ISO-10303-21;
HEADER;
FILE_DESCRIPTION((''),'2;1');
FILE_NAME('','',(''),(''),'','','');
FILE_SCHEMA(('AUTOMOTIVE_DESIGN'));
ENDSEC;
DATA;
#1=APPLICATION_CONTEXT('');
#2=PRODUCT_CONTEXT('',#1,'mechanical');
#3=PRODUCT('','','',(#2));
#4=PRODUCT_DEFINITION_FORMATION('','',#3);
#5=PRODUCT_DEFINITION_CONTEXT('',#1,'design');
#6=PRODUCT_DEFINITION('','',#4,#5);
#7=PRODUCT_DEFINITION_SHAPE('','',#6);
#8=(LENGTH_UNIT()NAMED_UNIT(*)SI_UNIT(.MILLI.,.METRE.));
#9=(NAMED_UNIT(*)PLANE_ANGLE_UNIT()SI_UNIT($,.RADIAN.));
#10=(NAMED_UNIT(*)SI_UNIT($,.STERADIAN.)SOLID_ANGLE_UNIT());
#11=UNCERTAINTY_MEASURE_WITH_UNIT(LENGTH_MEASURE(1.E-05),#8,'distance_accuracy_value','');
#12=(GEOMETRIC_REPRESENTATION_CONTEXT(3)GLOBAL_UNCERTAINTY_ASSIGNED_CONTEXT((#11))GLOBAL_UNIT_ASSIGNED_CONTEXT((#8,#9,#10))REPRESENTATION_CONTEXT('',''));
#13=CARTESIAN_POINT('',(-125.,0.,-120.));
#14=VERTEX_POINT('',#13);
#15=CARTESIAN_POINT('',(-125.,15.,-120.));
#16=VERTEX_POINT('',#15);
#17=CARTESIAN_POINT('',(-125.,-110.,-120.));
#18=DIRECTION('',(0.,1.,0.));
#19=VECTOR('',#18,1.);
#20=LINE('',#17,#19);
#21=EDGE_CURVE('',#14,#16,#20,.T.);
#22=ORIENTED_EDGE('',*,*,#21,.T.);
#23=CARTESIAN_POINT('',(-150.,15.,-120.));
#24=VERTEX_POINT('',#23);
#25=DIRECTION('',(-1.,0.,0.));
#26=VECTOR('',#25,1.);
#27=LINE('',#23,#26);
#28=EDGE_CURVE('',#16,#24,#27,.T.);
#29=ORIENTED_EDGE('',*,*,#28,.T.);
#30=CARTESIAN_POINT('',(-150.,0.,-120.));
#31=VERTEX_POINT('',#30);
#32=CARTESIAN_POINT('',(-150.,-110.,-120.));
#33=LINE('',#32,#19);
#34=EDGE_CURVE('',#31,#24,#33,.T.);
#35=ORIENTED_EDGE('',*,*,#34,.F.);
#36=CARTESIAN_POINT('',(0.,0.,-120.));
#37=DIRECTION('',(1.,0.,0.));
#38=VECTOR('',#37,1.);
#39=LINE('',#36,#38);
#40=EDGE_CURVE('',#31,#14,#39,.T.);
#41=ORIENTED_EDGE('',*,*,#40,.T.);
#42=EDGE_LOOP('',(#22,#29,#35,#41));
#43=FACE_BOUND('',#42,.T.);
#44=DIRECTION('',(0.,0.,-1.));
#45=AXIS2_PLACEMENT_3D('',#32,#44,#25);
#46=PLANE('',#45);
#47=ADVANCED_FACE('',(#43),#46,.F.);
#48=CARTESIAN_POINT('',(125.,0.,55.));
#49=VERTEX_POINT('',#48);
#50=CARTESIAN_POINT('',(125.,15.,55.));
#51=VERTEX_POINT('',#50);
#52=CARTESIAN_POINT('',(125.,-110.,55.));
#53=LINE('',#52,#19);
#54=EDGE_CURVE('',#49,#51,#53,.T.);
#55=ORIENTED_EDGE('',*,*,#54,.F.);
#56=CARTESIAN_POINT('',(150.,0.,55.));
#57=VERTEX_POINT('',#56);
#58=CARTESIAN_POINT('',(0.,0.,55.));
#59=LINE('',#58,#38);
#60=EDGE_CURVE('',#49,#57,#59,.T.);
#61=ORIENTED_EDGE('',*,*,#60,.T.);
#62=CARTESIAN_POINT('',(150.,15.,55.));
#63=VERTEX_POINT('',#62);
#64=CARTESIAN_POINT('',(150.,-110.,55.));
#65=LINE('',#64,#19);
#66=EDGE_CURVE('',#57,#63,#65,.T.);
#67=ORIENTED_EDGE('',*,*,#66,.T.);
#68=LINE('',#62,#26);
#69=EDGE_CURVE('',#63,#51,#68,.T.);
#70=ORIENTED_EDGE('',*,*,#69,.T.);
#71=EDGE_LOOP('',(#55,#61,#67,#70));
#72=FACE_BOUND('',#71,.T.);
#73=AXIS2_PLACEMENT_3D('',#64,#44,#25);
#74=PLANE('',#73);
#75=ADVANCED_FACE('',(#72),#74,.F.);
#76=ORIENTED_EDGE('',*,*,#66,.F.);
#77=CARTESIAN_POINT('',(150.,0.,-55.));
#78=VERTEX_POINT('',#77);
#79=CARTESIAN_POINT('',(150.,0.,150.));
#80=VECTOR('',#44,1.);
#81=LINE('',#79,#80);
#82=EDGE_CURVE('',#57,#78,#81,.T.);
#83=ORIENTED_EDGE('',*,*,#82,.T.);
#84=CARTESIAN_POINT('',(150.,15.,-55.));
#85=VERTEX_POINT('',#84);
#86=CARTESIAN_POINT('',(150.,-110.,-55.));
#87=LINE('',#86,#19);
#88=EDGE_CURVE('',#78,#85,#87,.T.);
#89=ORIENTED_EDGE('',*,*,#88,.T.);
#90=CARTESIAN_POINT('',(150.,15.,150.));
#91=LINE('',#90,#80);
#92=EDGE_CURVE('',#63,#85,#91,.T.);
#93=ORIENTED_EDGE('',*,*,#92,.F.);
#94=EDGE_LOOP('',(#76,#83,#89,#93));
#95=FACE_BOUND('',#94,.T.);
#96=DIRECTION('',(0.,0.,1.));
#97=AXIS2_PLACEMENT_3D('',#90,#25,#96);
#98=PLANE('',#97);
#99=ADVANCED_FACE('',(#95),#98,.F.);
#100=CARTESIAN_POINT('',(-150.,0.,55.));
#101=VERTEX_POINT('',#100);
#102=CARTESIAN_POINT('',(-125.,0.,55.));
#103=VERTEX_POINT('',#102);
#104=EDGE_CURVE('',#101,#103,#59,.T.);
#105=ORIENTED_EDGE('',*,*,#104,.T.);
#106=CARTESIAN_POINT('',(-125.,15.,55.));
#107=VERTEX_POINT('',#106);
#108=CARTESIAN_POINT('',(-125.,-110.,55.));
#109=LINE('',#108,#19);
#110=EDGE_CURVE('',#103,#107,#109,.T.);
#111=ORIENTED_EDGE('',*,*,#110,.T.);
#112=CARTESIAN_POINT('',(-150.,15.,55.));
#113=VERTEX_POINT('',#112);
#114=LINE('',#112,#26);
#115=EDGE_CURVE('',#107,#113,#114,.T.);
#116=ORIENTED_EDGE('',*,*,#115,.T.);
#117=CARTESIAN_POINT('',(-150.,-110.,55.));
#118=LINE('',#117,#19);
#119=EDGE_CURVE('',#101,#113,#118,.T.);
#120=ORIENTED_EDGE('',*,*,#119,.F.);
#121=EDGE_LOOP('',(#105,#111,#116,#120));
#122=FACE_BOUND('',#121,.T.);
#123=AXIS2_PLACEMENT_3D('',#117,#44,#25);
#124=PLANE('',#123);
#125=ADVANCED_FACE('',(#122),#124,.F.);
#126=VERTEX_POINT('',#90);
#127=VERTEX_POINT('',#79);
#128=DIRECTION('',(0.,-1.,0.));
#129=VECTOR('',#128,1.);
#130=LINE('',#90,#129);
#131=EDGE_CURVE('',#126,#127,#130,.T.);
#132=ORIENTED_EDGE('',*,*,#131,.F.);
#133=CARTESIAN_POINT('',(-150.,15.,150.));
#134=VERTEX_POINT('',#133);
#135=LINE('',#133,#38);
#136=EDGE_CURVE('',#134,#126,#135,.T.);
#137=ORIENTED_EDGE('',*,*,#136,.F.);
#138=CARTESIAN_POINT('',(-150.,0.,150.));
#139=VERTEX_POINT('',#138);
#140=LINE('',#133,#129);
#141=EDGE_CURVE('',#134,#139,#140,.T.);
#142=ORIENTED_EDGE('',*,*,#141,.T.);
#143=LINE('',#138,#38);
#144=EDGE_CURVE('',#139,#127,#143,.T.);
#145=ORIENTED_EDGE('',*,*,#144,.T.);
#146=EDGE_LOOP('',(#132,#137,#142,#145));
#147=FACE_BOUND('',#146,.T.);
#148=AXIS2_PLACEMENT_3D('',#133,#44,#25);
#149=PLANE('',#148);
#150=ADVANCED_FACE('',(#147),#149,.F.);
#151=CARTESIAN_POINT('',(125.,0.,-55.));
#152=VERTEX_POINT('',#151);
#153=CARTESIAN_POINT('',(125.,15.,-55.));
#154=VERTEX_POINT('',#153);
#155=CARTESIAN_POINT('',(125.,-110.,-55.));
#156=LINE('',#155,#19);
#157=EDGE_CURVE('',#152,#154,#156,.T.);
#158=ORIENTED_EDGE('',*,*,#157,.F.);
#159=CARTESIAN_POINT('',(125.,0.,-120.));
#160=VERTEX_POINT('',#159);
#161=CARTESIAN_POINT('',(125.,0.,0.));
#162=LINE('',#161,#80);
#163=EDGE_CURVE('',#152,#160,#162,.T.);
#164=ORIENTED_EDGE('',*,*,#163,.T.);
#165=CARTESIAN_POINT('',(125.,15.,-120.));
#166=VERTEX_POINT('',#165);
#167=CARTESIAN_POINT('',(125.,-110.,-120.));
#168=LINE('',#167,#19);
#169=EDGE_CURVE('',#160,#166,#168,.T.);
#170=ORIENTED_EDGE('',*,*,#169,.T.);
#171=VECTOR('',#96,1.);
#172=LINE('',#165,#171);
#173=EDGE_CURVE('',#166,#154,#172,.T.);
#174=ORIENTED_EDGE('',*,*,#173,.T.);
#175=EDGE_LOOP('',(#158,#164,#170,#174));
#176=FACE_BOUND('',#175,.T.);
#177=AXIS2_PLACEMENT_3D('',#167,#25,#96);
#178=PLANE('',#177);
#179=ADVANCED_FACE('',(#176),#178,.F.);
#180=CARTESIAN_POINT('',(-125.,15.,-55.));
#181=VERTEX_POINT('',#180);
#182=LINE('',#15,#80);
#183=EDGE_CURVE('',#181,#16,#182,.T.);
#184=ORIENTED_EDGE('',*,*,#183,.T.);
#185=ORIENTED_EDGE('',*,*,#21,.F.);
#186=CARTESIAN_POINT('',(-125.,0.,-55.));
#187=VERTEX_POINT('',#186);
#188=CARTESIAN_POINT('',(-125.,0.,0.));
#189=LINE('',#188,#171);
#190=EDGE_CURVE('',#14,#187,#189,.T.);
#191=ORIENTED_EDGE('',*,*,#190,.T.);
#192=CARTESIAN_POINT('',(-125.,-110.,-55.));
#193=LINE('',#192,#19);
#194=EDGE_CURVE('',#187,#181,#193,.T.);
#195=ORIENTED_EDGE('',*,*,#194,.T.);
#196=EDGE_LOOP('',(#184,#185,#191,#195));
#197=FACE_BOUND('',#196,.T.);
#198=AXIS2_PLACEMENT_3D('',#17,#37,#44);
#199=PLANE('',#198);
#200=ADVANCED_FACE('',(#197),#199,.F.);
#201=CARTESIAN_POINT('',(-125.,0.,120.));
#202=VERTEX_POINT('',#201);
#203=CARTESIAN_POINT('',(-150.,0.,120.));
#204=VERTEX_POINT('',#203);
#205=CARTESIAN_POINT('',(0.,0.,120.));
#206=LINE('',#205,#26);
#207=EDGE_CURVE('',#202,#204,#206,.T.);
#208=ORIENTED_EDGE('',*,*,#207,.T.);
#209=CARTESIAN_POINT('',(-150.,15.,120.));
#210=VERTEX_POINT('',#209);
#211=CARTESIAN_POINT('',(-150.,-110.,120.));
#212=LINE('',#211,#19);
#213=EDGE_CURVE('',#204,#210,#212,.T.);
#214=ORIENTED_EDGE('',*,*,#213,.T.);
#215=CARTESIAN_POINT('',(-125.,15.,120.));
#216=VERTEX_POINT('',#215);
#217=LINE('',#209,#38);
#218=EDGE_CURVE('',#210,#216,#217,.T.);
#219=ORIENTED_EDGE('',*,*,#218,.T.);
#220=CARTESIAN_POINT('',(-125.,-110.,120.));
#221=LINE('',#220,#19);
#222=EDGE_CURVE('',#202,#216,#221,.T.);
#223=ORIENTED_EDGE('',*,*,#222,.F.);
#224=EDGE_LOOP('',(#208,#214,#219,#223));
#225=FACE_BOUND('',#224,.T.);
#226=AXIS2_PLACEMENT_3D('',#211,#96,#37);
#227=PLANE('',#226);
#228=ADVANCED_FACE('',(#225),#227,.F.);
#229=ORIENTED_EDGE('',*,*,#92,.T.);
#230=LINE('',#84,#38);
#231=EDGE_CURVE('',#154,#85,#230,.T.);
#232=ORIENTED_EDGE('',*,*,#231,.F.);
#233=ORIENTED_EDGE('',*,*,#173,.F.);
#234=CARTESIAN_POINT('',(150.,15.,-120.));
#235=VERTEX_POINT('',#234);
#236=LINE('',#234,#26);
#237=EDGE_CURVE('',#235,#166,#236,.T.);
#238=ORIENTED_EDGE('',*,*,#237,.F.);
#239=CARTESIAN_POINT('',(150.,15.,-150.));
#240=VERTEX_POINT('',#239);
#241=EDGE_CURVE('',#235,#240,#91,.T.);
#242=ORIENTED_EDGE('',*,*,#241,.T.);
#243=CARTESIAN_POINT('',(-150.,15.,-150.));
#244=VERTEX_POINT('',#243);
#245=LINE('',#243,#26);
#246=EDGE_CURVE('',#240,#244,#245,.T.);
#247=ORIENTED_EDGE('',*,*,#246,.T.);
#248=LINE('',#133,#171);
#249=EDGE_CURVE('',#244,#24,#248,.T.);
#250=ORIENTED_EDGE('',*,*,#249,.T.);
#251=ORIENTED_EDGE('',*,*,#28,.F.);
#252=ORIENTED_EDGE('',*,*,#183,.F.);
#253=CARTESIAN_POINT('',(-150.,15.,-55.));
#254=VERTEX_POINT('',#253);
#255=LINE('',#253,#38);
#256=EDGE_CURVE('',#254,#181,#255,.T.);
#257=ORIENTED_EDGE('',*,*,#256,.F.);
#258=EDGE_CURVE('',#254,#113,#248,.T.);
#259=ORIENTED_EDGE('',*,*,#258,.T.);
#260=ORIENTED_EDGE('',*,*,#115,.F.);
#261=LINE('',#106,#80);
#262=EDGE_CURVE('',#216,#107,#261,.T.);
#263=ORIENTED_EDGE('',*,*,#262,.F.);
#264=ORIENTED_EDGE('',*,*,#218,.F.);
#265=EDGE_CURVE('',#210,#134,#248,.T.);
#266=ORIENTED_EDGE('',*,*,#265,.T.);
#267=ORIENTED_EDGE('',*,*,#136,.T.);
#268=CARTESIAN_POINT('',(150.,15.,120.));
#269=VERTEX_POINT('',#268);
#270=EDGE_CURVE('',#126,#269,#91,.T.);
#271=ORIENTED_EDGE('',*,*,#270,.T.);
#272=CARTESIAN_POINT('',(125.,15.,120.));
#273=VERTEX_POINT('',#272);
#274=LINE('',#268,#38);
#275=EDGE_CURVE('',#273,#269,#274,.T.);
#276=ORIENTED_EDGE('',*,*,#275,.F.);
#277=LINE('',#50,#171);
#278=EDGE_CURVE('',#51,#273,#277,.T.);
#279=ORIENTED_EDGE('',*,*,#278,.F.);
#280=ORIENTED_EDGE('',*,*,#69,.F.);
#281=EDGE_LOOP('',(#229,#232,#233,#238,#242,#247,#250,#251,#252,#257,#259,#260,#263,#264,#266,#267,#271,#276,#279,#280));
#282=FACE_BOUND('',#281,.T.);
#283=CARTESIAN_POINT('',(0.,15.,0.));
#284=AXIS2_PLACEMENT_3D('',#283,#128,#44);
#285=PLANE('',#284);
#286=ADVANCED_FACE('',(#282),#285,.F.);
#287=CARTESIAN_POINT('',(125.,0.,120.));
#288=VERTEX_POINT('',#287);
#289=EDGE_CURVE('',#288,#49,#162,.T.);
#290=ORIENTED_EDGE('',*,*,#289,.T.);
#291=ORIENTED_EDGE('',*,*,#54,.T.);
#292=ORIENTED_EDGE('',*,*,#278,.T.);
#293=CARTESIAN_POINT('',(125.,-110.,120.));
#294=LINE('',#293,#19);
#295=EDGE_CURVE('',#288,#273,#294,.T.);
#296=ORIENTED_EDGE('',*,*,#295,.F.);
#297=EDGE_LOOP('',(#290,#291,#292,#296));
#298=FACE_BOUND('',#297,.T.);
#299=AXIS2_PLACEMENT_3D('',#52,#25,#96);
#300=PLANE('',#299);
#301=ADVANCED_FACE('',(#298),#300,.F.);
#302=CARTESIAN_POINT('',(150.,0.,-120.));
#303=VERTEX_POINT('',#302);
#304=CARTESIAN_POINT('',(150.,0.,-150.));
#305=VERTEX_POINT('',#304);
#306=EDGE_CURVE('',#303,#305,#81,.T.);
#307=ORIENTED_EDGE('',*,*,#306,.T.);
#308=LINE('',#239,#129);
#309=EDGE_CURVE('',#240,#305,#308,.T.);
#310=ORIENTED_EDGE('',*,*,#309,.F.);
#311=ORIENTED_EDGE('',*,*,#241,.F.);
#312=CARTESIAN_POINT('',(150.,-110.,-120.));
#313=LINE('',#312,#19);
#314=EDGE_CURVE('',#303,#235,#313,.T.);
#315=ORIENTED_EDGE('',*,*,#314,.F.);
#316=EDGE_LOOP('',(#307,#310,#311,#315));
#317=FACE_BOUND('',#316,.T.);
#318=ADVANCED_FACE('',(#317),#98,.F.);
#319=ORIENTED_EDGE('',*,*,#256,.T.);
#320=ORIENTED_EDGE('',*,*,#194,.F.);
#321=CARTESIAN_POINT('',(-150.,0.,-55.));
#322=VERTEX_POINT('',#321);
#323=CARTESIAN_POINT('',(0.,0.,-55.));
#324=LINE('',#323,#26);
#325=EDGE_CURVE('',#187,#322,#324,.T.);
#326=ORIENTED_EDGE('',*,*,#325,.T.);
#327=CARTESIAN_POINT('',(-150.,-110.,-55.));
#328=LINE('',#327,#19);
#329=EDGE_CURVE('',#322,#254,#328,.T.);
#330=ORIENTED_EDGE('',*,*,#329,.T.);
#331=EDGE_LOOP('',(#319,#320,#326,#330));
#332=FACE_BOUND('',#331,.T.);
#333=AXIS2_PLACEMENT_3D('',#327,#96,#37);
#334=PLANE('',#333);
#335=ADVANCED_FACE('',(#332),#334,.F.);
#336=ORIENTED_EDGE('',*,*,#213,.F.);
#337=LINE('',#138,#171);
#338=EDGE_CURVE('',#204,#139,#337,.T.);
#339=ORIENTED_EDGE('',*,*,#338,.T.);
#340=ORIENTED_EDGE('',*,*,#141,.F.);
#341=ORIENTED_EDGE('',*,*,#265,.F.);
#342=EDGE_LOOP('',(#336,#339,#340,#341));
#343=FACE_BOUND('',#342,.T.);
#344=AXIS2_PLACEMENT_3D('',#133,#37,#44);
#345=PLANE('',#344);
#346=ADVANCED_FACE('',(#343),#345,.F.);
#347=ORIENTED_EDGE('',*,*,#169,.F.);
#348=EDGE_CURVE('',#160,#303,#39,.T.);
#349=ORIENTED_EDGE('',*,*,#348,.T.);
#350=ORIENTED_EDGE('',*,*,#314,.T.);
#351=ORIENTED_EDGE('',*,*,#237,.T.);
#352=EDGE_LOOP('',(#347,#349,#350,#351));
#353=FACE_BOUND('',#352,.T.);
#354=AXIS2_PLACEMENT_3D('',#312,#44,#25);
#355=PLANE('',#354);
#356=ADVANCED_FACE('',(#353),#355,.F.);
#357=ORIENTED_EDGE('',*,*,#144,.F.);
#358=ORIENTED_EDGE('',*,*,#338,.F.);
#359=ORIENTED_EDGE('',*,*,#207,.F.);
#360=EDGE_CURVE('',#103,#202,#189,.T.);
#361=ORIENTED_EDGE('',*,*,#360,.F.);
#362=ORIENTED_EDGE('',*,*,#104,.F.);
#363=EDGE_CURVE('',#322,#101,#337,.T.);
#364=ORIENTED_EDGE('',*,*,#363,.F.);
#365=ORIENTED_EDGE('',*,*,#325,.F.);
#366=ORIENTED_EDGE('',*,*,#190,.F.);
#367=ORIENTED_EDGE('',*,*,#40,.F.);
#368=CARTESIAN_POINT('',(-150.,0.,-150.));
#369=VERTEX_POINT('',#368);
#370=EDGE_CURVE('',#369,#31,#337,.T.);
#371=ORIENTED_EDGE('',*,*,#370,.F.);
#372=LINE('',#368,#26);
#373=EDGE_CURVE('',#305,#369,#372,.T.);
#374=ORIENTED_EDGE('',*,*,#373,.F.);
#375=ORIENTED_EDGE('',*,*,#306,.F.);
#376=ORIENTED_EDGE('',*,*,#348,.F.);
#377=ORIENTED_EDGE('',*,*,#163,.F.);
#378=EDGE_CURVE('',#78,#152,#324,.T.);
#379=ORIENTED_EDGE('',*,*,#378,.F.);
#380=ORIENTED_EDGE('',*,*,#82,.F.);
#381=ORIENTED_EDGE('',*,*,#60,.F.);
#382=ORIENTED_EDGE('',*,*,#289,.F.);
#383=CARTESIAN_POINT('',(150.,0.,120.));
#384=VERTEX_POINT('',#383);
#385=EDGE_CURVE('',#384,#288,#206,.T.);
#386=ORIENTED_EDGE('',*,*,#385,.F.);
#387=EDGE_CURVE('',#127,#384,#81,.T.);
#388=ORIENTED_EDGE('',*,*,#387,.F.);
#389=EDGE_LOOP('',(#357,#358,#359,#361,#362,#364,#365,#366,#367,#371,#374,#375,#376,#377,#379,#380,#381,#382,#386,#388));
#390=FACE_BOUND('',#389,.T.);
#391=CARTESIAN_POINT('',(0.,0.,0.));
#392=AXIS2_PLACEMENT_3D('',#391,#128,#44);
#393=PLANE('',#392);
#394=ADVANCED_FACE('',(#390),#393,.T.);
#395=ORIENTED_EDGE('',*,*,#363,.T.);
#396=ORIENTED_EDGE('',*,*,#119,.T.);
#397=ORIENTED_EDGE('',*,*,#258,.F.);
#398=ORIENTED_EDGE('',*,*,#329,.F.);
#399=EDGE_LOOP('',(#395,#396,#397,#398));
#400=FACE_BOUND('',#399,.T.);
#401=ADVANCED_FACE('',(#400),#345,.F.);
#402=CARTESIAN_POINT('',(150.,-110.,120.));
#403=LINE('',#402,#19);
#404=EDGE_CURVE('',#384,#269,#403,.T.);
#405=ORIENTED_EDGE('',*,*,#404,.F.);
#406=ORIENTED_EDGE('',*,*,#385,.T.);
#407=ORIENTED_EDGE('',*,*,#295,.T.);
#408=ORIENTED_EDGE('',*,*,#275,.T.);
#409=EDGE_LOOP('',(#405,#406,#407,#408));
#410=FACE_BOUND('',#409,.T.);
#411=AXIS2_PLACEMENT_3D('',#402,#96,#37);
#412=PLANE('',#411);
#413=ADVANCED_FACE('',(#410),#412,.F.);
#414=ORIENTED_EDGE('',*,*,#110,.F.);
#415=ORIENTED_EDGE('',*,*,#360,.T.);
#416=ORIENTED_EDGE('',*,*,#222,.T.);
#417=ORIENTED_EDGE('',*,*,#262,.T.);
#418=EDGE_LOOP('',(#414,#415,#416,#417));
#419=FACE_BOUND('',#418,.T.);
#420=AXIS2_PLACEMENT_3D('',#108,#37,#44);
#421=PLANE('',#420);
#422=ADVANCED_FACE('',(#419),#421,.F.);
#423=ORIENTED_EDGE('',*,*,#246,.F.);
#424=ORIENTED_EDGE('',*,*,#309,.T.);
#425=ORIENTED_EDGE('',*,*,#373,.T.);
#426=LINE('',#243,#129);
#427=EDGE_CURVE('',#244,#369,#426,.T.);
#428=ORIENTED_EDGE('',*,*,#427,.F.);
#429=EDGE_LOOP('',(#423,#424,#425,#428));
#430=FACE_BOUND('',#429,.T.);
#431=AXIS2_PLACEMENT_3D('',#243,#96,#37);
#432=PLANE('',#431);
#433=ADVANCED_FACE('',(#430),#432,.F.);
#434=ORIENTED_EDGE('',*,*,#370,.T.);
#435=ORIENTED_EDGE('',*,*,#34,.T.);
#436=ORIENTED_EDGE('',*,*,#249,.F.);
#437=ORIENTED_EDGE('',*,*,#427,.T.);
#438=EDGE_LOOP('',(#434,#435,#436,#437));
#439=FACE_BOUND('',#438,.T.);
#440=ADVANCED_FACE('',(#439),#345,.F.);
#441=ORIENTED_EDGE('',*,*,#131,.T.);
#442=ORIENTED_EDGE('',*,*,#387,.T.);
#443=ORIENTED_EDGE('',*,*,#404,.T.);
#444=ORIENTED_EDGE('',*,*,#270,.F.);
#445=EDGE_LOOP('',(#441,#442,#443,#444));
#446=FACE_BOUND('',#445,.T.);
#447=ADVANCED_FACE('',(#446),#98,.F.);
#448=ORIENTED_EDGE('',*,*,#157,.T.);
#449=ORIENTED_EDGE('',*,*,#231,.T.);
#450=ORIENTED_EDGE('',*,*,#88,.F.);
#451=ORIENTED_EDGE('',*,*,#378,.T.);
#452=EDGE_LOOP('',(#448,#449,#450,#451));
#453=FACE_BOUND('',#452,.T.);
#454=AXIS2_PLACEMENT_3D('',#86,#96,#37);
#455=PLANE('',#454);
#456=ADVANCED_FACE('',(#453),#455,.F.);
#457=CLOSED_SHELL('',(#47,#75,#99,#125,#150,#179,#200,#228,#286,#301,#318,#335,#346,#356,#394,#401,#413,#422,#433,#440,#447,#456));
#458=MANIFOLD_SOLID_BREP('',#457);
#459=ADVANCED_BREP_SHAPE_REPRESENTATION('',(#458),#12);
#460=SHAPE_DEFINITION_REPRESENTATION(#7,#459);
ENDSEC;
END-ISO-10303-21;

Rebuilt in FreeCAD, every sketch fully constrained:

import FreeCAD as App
import Part
import Sketcher
from FreeCAD import Vector
Q = App.Units.Quantity


def add_polygon(sketch, points):
    """Adds a closed chain of lines whose ends are joined by coincident constraints."""
    first, n = sketch.GeometryCount, len(points)
    for a, b in zip(points, points[1:] + points[:1]):
        sketch.addGeometry(Part.LineSegment(App.Vector(*a, 0), App.Vector(*b, 0)), False)
    for i in range(n):
        sketch.addConstraint(Sketcher.Constraint("Coincident", first + i, 2, first + (i + 1) % n, 1))

doc = App.newDocument("Part")
params = doc.addObject("Spreadsheet::Sheet", "Params")
for row, (alias, value) in enumerate([
    ("sketch1_width", "300 mm"),
    ("pad1_length", "15 mm"),
    ("sketch2_width", "25 mm"),
    ("sketch2_height", "65 mm"),
    ("pocket1_length", "125 mm"),
], start=1):
    params.set(f"A{row}", alias)
    params.set(f"B{row}", "=" + value)
    params.setAlias(f"B{row}", alias)

body = doc.addObject("PartDesign::Body", "Body")

# Sketch on XZ plane
sketch1 = body.newObject("Sketcher::SketchObject", "Sketch")
sketch1.AttachmentSupport = (doc.getObject("XZ_Plane"), [""])
sketch1.MapMode = "FlatFace"
add_polygon(sketch1, [(-150, -150), (-150, 150), (150, 150), (150, -150)])  # lines 0-3
sketch1.addConstraint([
    Sketcher.Constraint("Vertical", 0),
    Sketcher.Constraint("Horizontal", 1),
    Sketcher.Constraint("Vertical", 2),
    Sketcher.Constraint("Horizontal", 3),
    Sketcher.Constraint("Symmetric", 0, 2, 2, 2, -1, 1),
    Sketcher.Constraint("Equal", 3, 0),
    Sketcher.Constraint("DistanceX", 1, 1, 1, 2, Q("300 mm")),
])
sketch1.setExpression("Constraints[10]", "Params.sketch1_width")
pad1 = body.newObject("PartDesign::Pad", "Pad")
pad1.Profile = sketch1
pad1.setExpression("Length", "Params.pad1_length")
pad1.Reversed = True

# Sketch on XZ plane
sketch2 = body.newObject("Sketcher::SketchObject", "Sketch001")
sketch2.AttachmentSupport = (doc.getObject("XZ_Plane"), [""])
sketch2.MapMode = "FlatFace"
sketch2.AttachmentOffset = App.Placement(Vector(0, 0, -15), App.Rotation())
add_polygon(sketch2, [(-150, -120), (-150, -55), (-125, -55), (-125, -120)])  # lines 0-3
add_polygon(sketch2, [(125, -120), (125, -55), (150, -55), (150, -120)])  # lines 4-7
add_polygon(sketch2, [(-150, 55), (-150, 120), (-125, 120), (-125, 55)])  # lines 8-11
add_polygon(sketch2, [(125, 55), (125, 120), (150, 120), (150, 55)])  # lines 12-15
sketch2.addConstraint([
    Sketcher.Constraint("Vertical", 0),
    Sketcher.Constraint("Horizontal", 1),
    Sketcher.Constraint("Vertical", 2),
    Sketcher.Constraint("Horizontal", 3),
    Sketcher.Constraint("Vertical", 4),
    Sketcher.Constraint("Horizontal", 5),
    Sketcher.Constraint("Vertical", 6),
    Sketcher.Constraint("Horizontal", 7),
    Sketcher.Constraint("Vertical", 8),
    Sketcher.Constraint("Horizontal", 9),
    Sketcher.Constraint("Vertical", 10),
    Sketcher.Constraint("Horizontal", 11),
    Sketcher.Constraint("Vertical", 12),
    Sketcher.Constraint("Horizontal", 13),
    Sketcher.Constraint("Vertical", 14),
    Sketcher.Constraint("Horizontal", 15),
    Sketcher.Constraint("Symmetric", 6, 2, 8, 2, -1, 1),
    Sketcher.Constraint("Symmetric", 4, 2, 10, 2, -1, 1),
    Sketcher.Constraint("Symmetric", 2, 2, 12, 2, -1, 1),
    Sketcher.Constraint("Symmetric", 0, 2, 14, 2, -1, 1),
    Sketcher.Constraint("Symmetric", 1, 2, 4, 2, -2),
    Sketcher.Constraint("Symmetric", 3, 2, 6, 2, -2),
    Sketcher.Constraint("DistanceX", 1, 1, 1, 2, Q("25 mm")),
    Sketcher.Constraint("DistanceY", 0, 1, 0, 2, Q("65 mm")),
    Sketcher.Constraint("DistanceX", 0, 2, -1, 1, Q("150 mm")),
    Sketcher.Constraint("DistanceY", 0, 2, -1, 1, Q("55 mm")),
])
sketch2.setExpression("Constraints[38]", "Params.sketch2_width")
sketch2.setExpression("Constraints[39]", "Params.sketch2_height")
pocket1 = body.newObject("PartDesign::Pocket", "Pocket")
pocket1.Profile = sketch2
pocket1.setExpression("Length", "Params.pocket1_length")
pocket1.Reversed = True

doc.recompute()
